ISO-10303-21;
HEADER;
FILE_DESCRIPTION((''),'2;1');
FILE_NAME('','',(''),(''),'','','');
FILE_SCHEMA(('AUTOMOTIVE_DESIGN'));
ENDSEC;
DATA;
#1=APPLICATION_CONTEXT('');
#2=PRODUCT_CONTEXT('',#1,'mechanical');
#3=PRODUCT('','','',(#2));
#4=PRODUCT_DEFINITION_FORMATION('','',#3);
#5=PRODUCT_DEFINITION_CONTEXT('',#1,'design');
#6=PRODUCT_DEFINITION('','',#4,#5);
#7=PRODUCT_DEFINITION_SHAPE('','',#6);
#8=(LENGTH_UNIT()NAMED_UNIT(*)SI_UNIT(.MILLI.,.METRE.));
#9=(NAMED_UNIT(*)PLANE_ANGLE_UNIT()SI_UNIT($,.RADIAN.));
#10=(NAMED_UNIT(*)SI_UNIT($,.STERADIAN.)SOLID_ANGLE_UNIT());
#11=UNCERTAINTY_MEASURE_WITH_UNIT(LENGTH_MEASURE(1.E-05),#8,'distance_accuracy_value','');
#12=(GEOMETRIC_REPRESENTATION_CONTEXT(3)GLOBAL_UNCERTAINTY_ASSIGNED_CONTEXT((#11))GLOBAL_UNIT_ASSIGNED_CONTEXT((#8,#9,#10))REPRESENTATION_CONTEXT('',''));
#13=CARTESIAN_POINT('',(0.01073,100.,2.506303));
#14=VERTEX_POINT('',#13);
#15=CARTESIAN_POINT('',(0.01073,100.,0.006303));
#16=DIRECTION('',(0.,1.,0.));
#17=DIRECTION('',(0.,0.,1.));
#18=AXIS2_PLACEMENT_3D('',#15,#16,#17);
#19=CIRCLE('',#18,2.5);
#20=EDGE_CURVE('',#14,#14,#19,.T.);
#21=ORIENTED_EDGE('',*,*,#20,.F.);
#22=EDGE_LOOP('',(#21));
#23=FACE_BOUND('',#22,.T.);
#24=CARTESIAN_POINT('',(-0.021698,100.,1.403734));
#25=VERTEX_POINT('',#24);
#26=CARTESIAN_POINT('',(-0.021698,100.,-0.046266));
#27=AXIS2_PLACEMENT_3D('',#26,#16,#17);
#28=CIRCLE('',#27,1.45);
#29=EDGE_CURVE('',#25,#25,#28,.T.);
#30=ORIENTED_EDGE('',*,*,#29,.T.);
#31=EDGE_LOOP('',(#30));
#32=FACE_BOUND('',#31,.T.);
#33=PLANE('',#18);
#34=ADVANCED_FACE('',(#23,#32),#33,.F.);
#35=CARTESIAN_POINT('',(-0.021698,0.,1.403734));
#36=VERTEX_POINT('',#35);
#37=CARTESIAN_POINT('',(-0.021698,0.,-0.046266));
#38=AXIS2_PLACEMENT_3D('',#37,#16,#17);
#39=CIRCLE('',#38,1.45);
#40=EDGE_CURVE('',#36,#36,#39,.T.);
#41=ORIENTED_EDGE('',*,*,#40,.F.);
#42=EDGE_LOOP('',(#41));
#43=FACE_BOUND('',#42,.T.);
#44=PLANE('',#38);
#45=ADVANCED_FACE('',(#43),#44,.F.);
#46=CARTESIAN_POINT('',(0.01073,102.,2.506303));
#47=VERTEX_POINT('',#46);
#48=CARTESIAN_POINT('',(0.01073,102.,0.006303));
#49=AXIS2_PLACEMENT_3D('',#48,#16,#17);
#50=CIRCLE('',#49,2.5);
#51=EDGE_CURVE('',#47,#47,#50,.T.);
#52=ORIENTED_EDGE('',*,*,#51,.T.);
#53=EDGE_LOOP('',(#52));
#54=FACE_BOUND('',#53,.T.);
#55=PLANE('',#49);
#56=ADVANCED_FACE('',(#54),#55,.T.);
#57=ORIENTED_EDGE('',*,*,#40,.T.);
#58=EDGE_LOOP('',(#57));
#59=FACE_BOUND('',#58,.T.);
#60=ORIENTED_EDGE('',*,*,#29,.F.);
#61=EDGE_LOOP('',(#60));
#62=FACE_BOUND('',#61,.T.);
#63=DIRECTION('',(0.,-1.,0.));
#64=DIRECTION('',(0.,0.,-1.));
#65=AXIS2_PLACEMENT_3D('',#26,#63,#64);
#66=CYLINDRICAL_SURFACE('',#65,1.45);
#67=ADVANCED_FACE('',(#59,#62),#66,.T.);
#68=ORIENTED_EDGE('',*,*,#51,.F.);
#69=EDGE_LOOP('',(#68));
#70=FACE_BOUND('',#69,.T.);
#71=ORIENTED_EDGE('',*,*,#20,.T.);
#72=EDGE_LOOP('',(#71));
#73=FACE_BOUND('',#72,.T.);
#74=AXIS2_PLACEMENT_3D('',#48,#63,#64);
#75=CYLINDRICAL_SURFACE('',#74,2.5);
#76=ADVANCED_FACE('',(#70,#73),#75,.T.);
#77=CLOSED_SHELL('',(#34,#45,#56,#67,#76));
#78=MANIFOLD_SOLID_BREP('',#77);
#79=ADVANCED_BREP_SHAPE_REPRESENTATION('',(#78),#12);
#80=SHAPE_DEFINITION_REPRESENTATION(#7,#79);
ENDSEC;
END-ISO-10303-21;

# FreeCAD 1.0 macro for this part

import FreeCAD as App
import Part
import Sketcher
from FreeCAD import Vector

doc = App.newDocument("Part")
params = doc.addObject("Spreadsheet::Sheet", "Params")
for row, (alias, value) in enumerate([
    ("sketch1_diameter", "2.9 mm"),
    ("pad1_length", "100 mm"),
    ("sketch2_diameter", "5 mm"),
    ("pad2_length", "2 mm"),
], start=1):
    params.set(f"A{row}", alias)
    params.set(f"B{row}", "=" + value)
    params.setAlias(f"B{row}", alias)

body = doc.addObject("PartDesign::Body", "Body")

# Sketch on XZ plane
sketch1 = body.newObject("Sketcher::SketchObject", "Sketch")
sketch1.AttachmentSupport = (doc.getObject("XZ_Plane"), [""])
sketch1.MapMode = "FlatFace"
sketch1.addGeometry(Part.Circle(Vector(0, 0, 0), Vector(0, 0, 1), 1.4), False)
sketch1.addConstraint([
    Sketcher.Constraint("Diameter", 0, 2.9),
    Sketcher.Constraint("DistanceX", 0, 3, -1, 1, 0.021698),
    Sketcher.Constraint("DistanceY", 0, 3, -1, 1, 0.046266),
])
sketch1.setExpression("Constraints[0]", "Params.sketch1_diameter")
pad1 = body.newObject("PartDesign::Pad", "Pad")
pad1.Profile = sketch1
pad1.setExpression("Length", "Params.pad1_length")
pad1.Reversed = True

# Sketch on XZ plane
sketch2 = body.newObject("Sketcher::SketchObject", "Sketch001")
sketch2.AttachmentSupport = (doc.getObject("XZ_Plane"), [""])
sketch2.MapMode = "FlatFace"
sketch2.AttachmentOffset = App.Placement(Vector(0, 0, -100), App.Rotation())
sketch2.addGeometry(Part.Circle(Vector(0, 0, 0), Vector(0, 0, 1), 2.5), False)
sketch2.addConstraint([
    Sketcher.Constraint("Diameter", 0, 5.0),
    Sketcher.Constraint("DistanceX", -1, 1, 0, 3, 0.01073),
    Sketcher.Constraint("DistanceY", -1, 1, 0, 3, 0.006303),
])
sketch2.setExpression("Constraints[0]", "Params.sketch2_diameter")
pad2 = body.newObject("PartDesign::Pad", "Pad001")
pad2.Profile = sketch2
pad2.setExpression("Length", "Params.pad2_length")
pad2.Reversed = True

doc.recompute()
